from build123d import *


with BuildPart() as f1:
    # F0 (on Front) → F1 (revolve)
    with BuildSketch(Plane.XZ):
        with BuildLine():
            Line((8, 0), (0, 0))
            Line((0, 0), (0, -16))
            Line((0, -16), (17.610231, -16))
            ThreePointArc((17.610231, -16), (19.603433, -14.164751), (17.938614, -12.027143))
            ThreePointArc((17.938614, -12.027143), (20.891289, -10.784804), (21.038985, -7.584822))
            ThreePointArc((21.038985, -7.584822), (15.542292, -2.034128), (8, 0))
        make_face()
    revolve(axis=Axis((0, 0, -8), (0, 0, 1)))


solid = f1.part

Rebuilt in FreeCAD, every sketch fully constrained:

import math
import FreeCAD as App
import Part
import Sketcher

doc = App.newDocument("Part")
body = doc.addObject("PartDesign::Body", "Body")

# Sketch on XZ plane
sketch1 = body.newObject("Sketcher::SketchObject", "Sketch")
sketch1.AttachmentSupport = (doc.getObject("XZ_Plane"), [""])
sketch1.MapMode = "FlatFace"
sketch1.addGeometry([
    Part.LineSegment(App.Vector(8, 0, 0), App.Vector(0, 0, 0)),  # 0
    Part.LineSegment(App.Vector(0, 0, 0), App.Vector(0, -16, 0)),  # 1
    Part.LineSegment(App.Vector(0, -16, 0), App.Vector(17.610231, -16, 0)),  # 2
    Part.ArcOfCircle(Part.Circle(App.Vector(17.61023, -14, 0), App.Vector(0, 0, 1), 2), math.radians(-89.999977), math.radians(80.549707)),  # 3
    Part.ArcOfCircle(Part.Circle(App.Vector(18.431189, -9.067858, 0), App.Vector(0, 0, 1), 3), math.radians(-99.450273), math.radians(29.626593)),  # 4
    Part.ArcOfCircle(Part.Circle(App.Vector(8.000001, -14.999998, 0), App.Vector(0, 0, 1), 14.999998), math.radians(29.626577), math.radians(90.000003)),  # 5
], False)
sketch1.addConstraint([
    Sketcher.Constraint("Coincident", 0, 2, 1, 1),
    Sketcher.Constraint("Coincident", 1, 2, 2, 1),
    Sketcher.Constraint("Tangent", 2, 2, 3, 1),
    Sketcher.Constraint("Tangent", 3, 2, 4, 1),
    Sketcher.Constraint("Tangent", 4, 2, 5, 1),
    Sketcher.Constraint("Tangent", 5, 2, 0, 1),
    Sketcher.Constraint("Horizontal", 0),
    Sketcher.Constraint("Vertical", 1),
    Sketcher.Constraint("Horizontal", 2),
    Sketcher.Constraint("Coincident", 0, 2, -1, 1),
    Sketcher.Constraint("Radius", 3, 2.0),
    Sketcher.Constraint("Radius", 4, 3.0),
    Sketcher.Constraint("Radius", 5, 14.999998),
    Sketcher.Constraint("DistanceX", 0, 2, 0, 1, 8.0),
    Sketcher.Constraint("DistanceY", 1, 2, 1, 1, 16.0),
    Sketcher.Constraint("DistanceX", 2, 1, 2, 2, 17.610231),
])
revolution = body.newObject("PartDesign::Revolution", "Revolution")
revolution.Profile = sketch1
revolution.ReferenceAxis = (sketch1, ["V_Axis"])
revolution.Angle = 360

doc.recompute()
